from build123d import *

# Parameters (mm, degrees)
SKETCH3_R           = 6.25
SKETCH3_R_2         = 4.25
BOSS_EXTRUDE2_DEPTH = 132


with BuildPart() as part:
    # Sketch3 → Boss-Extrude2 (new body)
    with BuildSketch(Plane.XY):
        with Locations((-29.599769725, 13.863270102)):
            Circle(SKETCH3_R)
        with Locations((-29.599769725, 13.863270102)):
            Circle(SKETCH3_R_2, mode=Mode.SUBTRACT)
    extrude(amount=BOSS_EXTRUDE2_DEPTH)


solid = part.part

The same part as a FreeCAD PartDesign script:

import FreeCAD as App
import Part
import Sketcher
from FreeCAD import Vector
Q = App.Units.Quantity

doc = App.newDocument("Part")
body = doc.addObject("PartDesign::Body", "Body")

# Sketch on XY plane
sketch1 = doc.addObject("Sketcher::SketchObject", "Sketch")
body.addObject(sketch1)
sketch1.AttachmentSupport = (doc.XY_Plane, [""])
sketch1.MapMode = "FlatFace"
sketch1.addGeometry(Part.Circle(Vector(-29.6, 13.9, 0), Vector(0, 0, 1), 6.2), False)
sketch1.addGeometry(Part.Circle(Vector(-29.6, 13.9, 0), Vector(0, 0, 1), 4.2), False)
sketch1.addConstraint(Sketcher.Constraint("Coincident", 1, 3, 0, 3))
sketch1.addConstraint(Sketcher.Constraint("Diameter", 0, Q("12.5 mm")))
sketch1.addConstraint(Sketcher.Constraint("Diameter", 1, Q("8.5 mm")))
sketch1.addConstraint(Sketcher.Constraint("DistanceX", 0, 3, -1, 1, Q("29.59977 mm")))
sketch1.addConstraint(Sketcher.Constraint("DistanceY", -1, 1, 0, 3, Q("13.86327 mm")))
pad1 = doc.addObject("PartDesign::Pad", "Pad")
body.addObject(pad1)
pad1.Profile = sketch1
pad1.Length = 132

doc.recompute()
